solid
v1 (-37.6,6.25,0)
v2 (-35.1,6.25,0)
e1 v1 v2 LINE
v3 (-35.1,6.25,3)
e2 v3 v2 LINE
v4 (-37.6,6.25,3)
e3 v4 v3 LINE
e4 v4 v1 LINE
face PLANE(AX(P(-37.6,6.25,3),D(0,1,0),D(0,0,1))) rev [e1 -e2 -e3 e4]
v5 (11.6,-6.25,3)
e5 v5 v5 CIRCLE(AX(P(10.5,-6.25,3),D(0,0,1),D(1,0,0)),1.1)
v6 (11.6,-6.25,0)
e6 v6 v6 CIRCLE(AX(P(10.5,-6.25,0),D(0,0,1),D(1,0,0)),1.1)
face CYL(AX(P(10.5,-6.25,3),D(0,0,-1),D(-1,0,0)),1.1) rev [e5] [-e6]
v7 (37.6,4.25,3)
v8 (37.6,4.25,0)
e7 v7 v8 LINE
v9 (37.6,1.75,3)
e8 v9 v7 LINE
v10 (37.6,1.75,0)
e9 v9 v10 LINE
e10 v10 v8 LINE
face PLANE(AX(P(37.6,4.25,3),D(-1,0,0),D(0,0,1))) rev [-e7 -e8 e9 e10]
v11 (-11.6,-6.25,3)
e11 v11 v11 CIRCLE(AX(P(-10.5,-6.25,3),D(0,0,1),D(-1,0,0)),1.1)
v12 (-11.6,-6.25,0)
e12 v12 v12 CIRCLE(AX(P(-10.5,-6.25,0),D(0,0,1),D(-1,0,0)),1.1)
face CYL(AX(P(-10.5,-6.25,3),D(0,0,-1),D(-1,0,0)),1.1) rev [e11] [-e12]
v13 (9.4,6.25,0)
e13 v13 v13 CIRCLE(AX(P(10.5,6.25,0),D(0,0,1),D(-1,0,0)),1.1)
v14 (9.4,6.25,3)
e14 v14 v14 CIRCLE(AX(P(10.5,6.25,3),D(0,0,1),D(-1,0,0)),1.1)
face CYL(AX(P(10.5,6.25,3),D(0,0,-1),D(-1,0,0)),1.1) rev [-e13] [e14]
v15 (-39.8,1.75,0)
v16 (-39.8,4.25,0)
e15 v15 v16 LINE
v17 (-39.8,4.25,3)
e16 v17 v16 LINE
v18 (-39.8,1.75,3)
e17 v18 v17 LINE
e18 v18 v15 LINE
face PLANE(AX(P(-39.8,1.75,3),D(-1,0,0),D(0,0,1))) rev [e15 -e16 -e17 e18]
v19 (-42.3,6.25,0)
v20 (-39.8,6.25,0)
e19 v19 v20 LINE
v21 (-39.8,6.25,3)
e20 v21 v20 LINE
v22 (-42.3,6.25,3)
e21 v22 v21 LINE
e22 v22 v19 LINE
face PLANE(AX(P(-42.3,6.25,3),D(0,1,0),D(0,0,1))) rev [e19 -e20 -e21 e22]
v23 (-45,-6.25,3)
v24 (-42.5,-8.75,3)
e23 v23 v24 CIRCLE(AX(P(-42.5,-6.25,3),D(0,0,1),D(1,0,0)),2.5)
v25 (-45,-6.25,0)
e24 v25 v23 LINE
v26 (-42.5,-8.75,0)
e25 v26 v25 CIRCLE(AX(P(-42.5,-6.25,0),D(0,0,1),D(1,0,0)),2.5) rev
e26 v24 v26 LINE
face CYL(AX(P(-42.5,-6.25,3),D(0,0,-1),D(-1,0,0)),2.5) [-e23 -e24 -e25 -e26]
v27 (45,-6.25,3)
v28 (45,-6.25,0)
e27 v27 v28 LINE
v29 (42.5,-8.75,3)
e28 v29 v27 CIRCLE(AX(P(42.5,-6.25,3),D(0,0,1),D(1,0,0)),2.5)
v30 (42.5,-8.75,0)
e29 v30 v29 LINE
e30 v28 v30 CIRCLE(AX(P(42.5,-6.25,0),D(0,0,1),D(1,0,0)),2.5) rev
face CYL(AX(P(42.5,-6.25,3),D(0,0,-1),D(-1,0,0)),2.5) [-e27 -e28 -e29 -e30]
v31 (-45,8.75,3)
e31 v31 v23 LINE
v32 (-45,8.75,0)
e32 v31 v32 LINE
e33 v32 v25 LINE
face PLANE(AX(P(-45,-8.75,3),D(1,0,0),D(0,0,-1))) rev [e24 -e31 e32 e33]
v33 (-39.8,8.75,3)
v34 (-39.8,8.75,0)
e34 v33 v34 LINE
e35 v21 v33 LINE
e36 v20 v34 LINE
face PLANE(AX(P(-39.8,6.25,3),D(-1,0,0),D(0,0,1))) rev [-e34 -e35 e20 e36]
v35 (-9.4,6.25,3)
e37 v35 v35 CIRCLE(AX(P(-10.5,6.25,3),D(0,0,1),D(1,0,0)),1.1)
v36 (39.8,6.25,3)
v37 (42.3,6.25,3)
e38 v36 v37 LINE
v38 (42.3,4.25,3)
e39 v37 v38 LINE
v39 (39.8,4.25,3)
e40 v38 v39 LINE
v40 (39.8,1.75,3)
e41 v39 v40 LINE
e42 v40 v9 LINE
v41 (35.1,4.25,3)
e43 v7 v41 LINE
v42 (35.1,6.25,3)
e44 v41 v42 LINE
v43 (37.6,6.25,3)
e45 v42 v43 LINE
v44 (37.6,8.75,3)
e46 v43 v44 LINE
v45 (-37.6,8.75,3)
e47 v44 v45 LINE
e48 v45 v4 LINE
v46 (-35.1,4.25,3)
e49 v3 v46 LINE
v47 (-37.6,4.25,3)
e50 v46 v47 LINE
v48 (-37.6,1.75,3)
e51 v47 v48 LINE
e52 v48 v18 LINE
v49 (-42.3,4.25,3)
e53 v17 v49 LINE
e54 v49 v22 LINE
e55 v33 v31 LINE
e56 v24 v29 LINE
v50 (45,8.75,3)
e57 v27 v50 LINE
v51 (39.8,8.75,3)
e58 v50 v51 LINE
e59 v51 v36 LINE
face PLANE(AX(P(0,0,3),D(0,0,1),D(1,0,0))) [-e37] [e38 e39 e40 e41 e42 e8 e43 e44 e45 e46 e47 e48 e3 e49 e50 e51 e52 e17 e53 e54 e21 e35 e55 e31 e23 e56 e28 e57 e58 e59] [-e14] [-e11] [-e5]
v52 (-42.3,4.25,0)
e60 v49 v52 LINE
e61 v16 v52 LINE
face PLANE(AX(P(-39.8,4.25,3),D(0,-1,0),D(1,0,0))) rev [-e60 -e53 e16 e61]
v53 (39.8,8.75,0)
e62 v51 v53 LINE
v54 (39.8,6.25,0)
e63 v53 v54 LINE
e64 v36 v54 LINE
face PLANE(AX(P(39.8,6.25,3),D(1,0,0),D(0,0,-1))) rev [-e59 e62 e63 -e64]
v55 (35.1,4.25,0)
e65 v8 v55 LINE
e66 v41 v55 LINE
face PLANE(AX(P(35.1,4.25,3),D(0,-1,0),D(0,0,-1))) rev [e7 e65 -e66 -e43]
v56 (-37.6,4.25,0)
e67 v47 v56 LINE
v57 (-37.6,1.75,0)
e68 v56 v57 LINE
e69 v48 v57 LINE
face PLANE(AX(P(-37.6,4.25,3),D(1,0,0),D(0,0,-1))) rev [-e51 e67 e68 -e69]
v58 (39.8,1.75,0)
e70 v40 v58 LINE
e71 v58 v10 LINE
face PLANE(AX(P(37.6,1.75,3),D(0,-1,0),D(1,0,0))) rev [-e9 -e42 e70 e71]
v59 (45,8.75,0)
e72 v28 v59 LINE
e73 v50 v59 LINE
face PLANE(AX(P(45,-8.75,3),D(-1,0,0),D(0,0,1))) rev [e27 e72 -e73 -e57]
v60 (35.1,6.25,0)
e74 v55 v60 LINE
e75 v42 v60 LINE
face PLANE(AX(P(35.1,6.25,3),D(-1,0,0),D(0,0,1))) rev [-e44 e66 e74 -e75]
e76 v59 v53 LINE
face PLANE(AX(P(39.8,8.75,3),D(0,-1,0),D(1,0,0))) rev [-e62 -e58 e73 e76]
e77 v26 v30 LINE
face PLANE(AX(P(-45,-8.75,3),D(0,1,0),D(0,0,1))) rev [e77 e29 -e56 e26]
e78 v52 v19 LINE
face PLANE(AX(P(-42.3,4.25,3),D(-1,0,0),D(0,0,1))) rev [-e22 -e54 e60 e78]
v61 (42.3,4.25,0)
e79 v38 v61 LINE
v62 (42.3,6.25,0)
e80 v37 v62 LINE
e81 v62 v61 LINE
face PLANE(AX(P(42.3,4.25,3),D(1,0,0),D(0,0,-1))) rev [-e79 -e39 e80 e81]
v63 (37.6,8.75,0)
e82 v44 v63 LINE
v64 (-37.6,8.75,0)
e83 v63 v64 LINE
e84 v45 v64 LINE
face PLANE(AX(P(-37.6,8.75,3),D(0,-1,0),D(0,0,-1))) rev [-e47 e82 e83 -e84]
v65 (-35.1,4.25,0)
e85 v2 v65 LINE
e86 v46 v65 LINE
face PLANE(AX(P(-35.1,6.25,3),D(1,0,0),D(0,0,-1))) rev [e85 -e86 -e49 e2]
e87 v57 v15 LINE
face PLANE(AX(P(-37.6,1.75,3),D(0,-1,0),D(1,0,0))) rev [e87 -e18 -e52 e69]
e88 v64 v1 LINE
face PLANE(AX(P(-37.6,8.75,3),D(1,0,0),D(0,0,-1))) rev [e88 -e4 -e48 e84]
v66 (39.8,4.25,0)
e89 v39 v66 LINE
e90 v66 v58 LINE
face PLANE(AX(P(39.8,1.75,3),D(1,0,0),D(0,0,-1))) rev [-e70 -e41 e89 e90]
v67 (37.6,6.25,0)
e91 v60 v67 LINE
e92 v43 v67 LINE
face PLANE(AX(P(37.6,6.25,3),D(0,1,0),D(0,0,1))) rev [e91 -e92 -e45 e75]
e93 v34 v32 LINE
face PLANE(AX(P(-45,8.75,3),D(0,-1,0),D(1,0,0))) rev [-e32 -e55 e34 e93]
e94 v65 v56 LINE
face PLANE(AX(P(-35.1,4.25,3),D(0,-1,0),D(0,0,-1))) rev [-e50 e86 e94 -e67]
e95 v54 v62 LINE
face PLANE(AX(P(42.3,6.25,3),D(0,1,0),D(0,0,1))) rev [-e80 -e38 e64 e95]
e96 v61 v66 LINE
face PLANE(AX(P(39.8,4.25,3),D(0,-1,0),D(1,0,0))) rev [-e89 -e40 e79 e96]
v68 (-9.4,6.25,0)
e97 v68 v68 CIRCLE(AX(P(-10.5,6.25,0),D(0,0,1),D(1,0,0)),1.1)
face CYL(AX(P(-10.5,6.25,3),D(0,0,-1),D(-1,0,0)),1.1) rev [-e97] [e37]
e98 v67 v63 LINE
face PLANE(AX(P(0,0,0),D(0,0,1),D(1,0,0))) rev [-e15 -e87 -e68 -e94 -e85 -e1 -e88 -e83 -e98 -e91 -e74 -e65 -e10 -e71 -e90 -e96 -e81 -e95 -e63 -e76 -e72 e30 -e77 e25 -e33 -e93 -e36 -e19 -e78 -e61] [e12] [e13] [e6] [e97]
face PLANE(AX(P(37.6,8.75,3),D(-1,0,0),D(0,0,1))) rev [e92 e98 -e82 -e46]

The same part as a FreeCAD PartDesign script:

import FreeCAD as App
import Part
import Sketcher

V = App.Vector
Q = App.Units.Quantity


def edges_at(feature, points):
    """Names of the edges that pass closest to the given points."""
    edges = feature.Shape.Edges
    near = lambda p: min(range(len(edges)), key=lambda i: edges[i].distToShape(Part.Vertex(*p))[0])
    return sorted({f"Edge{near(p) + 1}" for p in points})


def add_polygon(sketch, points):
    """Adds a closed chain of lines whose ends are joined by coincident constraints."""
    first, n = sketch.GeometryCount, len(points)
    for a, b in zip(points, points[1:] + points[:1]):
        sketch.addGeometry(Part.LineSegment(App.Vector(*a, 0), App.Vector(*b, 0)), False)
    for i in range(n):
        sketch.addConstraint(Sketcher.Constraint("Coincident", first + i, 2, first + (i + 1) % n, 1))

doc = App.newDocument("Part")
body = doc.addObject("PartDesign::Body", "Body")

# Sketch on XY plane
sketch1 = body.newObject("Sketcher::SketchObject", "Sketch")
sketch1.AttachmentSupport = (doc.getObject("XY_Plane"), [""])
sketch1.MapMode = "FlatFace"
add_polygon(sketch1, [(-45, -8.75), (45, -8.75), (45, 8.75), (39.8, 8.75), (39.8, 6.25), (42.3, 6.25), (42.3, 4.25), (39.8, 4.25), (39.8, 1.75), (37.6, 1.75), (37.6, 4.25), (35.1, 4.25), (35.1, 6.25), (37.6, 6.25), (37.6, 8.75), (-37.6, 8.75), (-37.6, 6.25), (-35.1, 6.25), (-35.1, 4.25), (-37.6, 4.25), (-37.6, 1.75), (-39.8, 1.75), (-39.8, 4.25), (-42.3, 4.25), (-42.3, 6.25), (-39.8, 6.25), (-39.8, 8.75), (-45, 8.75)])  # lines 0-27
sketch1.addGeometry(Part.Circle(V(-10.5, -6.25, 0), V(0, 0, 1), 1.1), False)  # 28
sketch1.addGeometry(Part.Circle(V(10.5, -6.25, 0), V(0, 0, 1), 1.1), False)  # 29
sketch1.addGeometry(Part.Circle(V(-10.5, 6.25, 0), V(0, 0, 1), 1.1), False)  # 30
sketch1.addGeometry(Part.Circle(V(10.5, 6.25, 0), V(0, 0, 1), 1.1), False)  # 31
sketch1.addConstraint([
    Sketcher.Constraint("Horizontal", 0),
    Sketcher.Constraint("Vertical", 1),
    Sketcher.Constraint("Horizontal", 2),
    Sketcher.Constraint("Vertical", 3),
    Sketcher.Constraint("Horizontal", 4),
    Sketcher.Constraint("Vertical", 5),
    Sketcher.Constraint("Horizontal", 6),
    Sketcher.Constraint("Vertical", 7),
    Sketcher.Constraint("Horizontal", 8),
    Sketcher.Constraint("Vertical", 9),
    Sketcher.Constraint("Horizontal", 10),
    Sketcher.Constraint("Vertical", 11),
    Sketcher.Constraint("Horizontal", 12),
    Sketcher.Constraint("Vertical", 13),
    Sketcher.Constraint("Horizontal", 14),
    Sketcher.Constraint("Vertical", 15),
    Sketcher.Constraint("Horizontal", 16),
    Sketcher.Constraint("Vertical", 17),
    Sketcher.Constraint("Horizontal", 18),
    Sketcher.Constraint("Vertical", 19),
    Sketcher.Constraint("Horizontal", 20),
    Sketcher.Constraint("Vertical", 21),
    Sketcher.Constraint("Horizontal", 22),
    Sketcher.Constraint("Vertical", 23),
    Sketcher.Constraint("Horizontal", 24),
    Sketcher.Constraint("Vertical", 25),
    Sketcher.Constraint("Horizontal", 26),
    Sketcher.Constraint("Vertical", 27),
    Sketcher.Constraint("Equal", 28, 29),
    Sketcher.Constraint("Equal", 29, 30),
    Sketcher.Constraint("Equal", 30, 31),
    Sketcher.Constraint("Symmetric", 29, 3, 30, 3, -1, 1),
    Sketcher.Constraint("Symmetric", 28, 3, 31, 3, -1, 1),
    Sketcher.Constraint("Symmetric", 0, 2, 26, 2, -1, 1),
    Sketcher.Constraint("Symmetric", 28, 3, 29, 3, -2),
    Sketcher.Constraint("Symmetric", 12, 2, 15, 2, -2),
    Sketcher.Constraint("Symmetric", 10, 2, 17, 2, -2),
    Sketcher.Constraint("Symmetric", 8, 2, 19, 2, -2),
    Sketcher.Constraint("Symmetric", 6, 2, 21, 2, -2),
    Sketcher.Constraint("Symmetric", 4, 2, 23, 2, -2),
    Sketcher.Constraint("Symmetric", 2, 2, 25, 2, -2),
    Sketcher.Constraint("Horizontal", 31, 3, 3, 2),
    Sketcher.Constraint("Horizontal", 6, 2, 9, 2),
    Sketcher.Constraint("Horizontal", 4, 2, 11, 2),
    Sketcher.Constraint("Horizontal", 2, 2, 13, 2),
    Sketcher.Constraint("Vertical", 3, 2, 6, 2),
    Sketcher.Constraint("Vertical", 9, 2, 12, 2),
    Sketcher.Constraint("Equal", 6, 10),
    Sketcher.Constraint("Equal", 24, 3),
    Sketcher.Constraint("Equal", 3, 7),
    Sketcher.Constraint("Diameter", 28, Q("2.2 mm")),
    Sketcher.Constraint("DistanceX", 0, 1, 0, 2, Q("90 mm")),
    Sketcher.Constraint("DistanceY", 5, 2, 5, 1, Q("2 mm")),
    Sketcher.Constraint("DistanceX", 2, 2, 2, 1, Q("5.2 mm")),
    Sketcher.Constraint("DistanceX", 4, 1, 4, 2, Q("2.5 mm")),
    Sketcher.Constraint("DistanceX", 8, 2, 8, 1, Q("2.2 mm")),
    Sketcher.Constraint("DistanceY", 1, 1, 1, 2, Q("17.5 mm")),
    Sketcher.Constraint("DistanceX", 28, 3, 29, 3, Q("21 mm")),
])
pad1 = body.newObject("PartDesign::Pad", "Pad")
pad1.Profile = sketch1
pad1.Length = 3
doc.recompute()

fillet = body.newObject("PartDesign::Fillet", "Fillet")
fillet.Base = (pad1, edges_at(pad1, [(45, -8.75, 1.5), (-45, -8.75, 1.5)]))
fillet.Radius = 2.5

doc.recompute()
